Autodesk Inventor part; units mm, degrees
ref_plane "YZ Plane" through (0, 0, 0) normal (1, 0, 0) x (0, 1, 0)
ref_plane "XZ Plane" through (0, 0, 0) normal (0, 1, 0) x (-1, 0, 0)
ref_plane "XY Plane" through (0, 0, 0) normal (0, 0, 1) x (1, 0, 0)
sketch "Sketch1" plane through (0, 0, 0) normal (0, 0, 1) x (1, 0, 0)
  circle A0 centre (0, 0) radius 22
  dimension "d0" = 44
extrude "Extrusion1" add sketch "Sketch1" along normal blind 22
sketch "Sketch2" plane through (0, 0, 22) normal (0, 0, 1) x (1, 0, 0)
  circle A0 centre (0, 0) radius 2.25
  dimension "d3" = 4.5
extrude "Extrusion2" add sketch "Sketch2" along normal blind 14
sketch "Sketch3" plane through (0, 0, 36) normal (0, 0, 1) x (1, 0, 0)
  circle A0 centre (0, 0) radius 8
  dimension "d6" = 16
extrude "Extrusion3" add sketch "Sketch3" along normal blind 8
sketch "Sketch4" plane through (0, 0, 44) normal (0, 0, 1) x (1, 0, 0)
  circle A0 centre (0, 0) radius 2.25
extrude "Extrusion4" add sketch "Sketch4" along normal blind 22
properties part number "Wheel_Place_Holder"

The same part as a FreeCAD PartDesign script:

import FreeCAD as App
import Part
import Sketcher
Q = App.Units.Quantity

doc = App.newDocument("Part")
params = doc.addObject("Spreadsheet::Sheet", "Params")
for row, (alias, value) in enumerate([
    ("sketch1_diameter", "44 mm"),
    ("pad1_length", "22 mm"),
    ("sketch2_diameter", "4.5 mm"),
    ("pad2_length", "14 mm"),
    ("sketch3_diameter", "16 mm"),
    ("pad3_length", "8 mm"),
    ("sketch4_diameter", "4.5 mm"),
    ("pad4_length", "22 mm"),
], start=1):
    params.set(f"A{row}", alias)
    params.set(f"B{row}", "=" + value)
    params.setAlias(f"B{row}", alias)

body = doc.addObject("PartDesign::Body", "Body")

sketch1 = body.newObject("Sketcher::SketchObject", "Sketch")
sketch1.AttachmentSupport = (doc.getObject("XY_Plane"), [""])
sketch1.MapMode = "FlatFace"
sketch1.addGeometry(Part.Circle(App.Vector(0, 0, 0), App.Vector(0, 0, 1), 22), False)
sketch1.addConstraint([
    Sketcher.Constraint("Coincident", 0, 3, -1, 1),
    Sketcher.Constraint("Diameter", 0, Q("44 mm")),
])
sketch1.setExpression("Constraints[1]", "Params.sketch1_diameter")
pad1 = body.newObject("PartDesign::Pad", "Pad")
pad1.Profile = sketch1
pad1.setExpression("Length", "Params.pad1_length")

sketch2 = body.newObject("Sketcher::SketchObject", "Sketch001")
sketch2.AttachmentSupport = (doc.getObject("XY_Plane"), [""])
sketch2.MapMode = "FlatFace"
sketch2.AttachmentOffset = App.Placement(App.Vector(0, 0, 22), App.Rotation())
sketch2.addGeometry(Part.Circle(App.Vector(0, 0, 0), App.Vector(0, 0, 1), 2.2), False)
sketch2.addConstraint([
    Sketcher.Constraint("Coincident", 0, 3, -1, 1),
    Sketcher.Constraint("Diameter", 0, Q("4.5 mm")),
])
sketch2.setExpression("Constraints[1]", "Params.sketch2_diameter")
pad2 = body.newObject("PartDesign::Pad", "Pad001")
pad2.Profile = sketch2
pad2.setExpression("Length", "Params.pad2_length")

sketch3 = body.newObject("Sketcher::SketchObject", "Sketch002")
sketch3.AttachmentSupport = (doc.getObject("XY_Plane"), [""])
sketch3.MapMode = "FlatFace"
sketch3.AttachmentOffset = App.Placement(App.Vector(0, 0, 36), App.Rotation())
sketch3.addGeometry(Part.Circle(App.Vector(0, 0, 0), App.Vector(0, 0, 1), 8), False)
sketch3.addConstraint([
    Sketcher.Constraint("Coincident", 0, 3, -1, 1),
    Sketcher.Constraint("Diameter", 0, Q("16 mm")),
])
sketch3.setExpression("Constraints[1]", "Params.sketch3_diameter")
pad3 = body.newObject("PartDesign::Pad", "Pad002")
pad3.Profile = sketch3
pad3.setExpression("Length", "Params.pad3_length")

sketch4 = body.newObject("Sketcher::SketchObject", "Sketch003")
sketch4.AttachmentSupport = (doc.getObject("XY_Plane"), [""])
sketch4.MapMode = "FlatFace"
sketch4.AttachmentOffset = App.Placement(App.Vector(0, 0, 44), App.Rotation())
sketch4.addGeometry(Part.Circle(App.Vector(0, 0, 0), App.Vector(0, 0, 1), 2.2), False)
sketch4.addConstraint([
    Sketcher.Constraint("Coincident", 0, 3, -1, 1),
    Sketcher.Constraint("Diameter", 0, Q("4.5 mm")),
])
sketch4.setExpression("Constraints[1]", "Params.sketch4_diameter")
pad4 = body.newObject("PartDesign::Pad", "Pad003")
pad4.Profile = sketch4
pad4.setExpression("Length", "Params.pad4_length")

doc.recompute()
